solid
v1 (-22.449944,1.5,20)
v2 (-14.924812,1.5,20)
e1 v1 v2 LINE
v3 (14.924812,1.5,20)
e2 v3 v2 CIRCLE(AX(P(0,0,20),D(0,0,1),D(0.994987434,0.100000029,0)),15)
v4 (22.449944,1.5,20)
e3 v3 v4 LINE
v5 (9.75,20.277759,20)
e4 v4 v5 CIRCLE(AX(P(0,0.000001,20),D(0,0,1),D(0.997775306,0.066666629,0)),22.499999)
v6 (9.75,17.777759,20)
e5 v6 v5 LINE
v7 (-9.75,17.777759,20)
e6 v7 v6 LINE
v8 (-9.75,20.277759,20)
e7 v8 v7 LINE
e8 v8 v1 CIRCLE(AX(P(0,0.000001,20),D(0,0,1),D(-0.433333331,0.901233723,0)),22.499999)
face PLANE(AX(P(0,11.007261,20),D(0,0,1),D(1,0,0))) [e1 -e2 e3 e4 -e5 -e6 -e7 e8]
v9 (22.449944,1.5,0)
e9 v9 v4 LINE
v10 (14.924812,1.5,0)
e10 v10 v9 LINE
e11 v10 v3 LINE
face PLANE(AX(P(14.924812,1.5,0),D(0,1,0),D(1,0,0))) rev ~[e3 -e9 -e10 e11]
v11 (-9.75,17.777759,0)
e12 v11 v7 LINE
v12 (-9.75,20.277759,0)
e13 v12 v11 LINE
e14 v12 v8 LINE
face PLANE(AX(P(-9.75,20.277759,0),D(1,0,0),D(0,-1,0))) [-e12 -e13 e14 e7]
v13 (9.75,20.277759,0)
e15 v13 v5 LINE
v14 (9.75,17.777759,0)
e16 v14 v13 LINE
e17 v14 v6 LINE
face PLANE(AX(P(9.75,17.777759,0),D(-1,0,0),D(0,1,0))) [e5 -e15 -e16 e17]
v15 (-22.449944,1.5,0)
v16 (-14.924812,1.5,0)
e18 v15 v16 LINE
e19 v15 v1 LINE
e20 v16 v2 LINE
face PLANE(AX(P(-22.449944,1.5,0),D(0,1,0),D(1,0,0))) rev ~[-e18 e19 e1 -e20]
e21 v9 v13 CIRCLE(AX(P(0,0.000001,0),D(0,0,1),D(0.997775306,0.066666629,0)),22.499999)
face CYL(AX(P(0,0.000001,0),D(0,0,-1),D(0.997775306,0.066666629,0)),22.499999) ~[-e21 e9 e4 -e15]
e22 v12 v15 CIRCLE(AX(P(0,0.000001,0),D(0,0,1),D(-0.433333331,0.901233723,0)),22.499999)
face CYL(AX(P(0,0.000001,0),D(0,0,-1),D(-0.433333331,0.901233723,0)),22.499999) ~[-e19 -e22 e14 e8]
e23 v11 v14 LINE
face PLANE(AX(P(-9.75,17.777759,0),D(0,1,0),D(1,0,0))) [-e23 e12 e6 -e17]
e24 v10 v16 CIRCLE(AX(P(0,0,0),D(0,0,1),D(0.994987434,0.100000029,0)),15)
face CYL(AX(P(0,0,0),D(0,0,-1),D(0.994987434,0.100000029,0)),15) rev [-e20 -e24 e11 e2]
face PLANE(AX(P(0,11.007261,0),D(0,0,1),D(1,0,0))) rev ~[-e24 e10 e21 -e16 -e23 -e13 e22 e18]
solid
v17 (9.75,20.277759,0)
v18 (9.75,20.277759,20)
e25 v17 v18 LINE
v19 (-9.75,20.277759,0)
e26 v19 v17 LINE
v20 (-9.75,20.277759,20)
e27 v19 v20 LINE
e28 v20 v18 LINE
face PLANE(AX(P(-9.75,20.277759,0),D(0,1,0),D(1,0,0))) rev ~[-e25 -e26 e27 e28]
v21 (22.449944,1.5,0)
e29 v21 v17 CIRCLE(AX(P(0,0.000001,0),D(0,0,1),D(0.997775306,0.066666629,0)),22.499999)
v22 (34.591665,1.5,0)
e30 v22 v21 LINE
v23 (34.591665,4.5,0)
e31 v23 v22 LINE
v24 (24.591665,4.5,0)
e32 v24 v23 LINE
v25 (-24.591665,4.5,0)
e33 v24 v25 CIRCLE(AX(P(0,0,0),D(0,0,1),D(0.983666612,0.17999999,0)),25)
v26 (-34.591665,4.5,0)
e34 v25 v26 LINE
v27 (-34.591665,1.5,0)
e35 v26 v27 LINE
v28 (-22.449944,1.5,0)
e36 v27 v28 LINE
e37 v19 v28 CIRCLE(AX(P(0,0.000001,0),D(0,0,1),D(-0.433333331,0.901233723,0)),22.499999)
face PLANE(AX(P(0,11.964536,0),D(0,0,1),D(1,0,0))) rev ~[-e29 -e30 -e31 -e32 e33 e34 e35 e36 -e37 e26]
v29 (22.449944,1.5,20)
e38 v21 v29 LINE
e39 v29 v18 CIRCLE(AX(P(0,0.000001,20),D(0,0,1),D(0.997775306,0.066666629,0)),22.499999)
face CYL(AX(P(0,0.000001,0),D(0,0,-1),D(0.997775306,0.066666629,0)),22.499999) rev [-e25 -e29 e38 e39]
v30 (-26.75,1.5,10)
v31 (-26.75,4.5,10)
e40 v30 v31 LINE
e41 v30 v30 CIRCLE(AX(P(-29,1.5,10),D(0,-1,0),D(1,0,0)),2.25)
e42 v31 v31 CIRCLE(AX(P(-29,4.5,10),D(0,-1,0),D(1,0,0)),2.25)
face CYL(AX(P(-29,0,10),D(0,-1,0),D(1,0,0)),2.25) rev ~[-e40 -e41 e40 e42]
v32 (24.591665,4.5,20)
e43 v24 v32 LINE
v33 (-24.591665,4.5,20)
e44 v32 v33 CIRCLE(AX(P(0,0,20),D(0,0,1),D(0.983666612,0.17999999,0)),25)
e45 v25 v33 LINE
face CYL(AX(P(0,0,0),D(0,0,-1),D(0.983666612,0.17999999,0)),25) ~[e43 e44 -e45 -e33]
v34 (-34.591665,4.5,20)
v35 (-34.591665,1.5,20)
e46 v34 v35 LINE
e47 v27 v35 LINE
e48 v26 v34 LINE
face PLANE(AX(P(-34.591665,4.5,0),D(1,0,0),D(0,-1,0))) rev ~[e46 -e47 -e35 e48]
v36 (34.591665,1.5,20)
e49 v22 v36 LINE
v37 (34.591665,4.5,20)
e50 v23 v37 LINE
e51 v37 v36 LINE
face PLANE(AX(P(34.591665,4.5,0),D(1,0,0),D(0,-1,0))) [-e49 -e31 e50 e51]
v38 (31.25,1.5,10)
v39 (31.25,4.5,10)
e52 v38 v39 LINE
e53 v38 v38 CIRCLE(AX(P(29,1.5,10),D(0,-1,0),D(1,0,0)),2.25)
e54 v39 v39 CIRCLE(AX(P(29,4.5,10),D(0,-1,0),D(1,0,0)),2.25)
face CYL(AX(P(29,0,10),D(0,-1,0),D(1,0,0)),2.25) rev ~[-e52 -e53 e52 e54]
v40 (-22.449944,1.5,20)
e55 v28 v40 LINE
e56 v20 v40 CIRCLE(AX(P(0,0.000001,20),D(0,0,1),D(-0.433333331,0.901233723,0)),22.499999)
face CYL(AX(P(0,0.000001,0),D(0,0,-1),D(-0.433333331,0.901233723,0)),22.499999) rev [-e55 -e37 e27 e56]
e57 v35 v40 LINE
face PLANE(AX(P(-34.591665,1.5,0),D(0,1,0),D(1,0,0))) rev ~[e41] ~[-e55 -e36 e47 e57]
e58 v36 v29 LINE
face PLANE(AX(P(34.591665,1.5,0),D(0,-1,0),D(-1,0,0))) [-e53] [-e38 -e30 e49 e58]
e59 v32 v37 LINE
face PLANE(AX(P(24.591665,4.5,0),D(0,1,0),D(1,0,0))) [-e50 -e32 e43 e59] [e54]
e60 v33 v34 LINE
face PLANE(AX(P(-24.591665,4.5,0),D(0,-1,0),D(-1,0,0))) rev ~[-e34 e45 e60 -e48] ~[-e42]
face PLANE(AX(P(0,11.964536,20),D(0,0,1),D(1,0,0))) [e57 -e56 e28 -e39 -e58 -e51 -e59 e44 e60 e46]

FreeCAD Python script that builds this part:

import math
import FreeCAD as App
import Part
import Sketcher

V = App.Vector
Q = App.Units.Quantity

doc = App.newDocument("Part")
body = doc.addObject("PartDesign::Body", "Body")

sketch1 = body.newObject("Sketcher::SketchObject", "Sketch")
sketch1.AttachmentSupport = (doc.getObject("XY_Plane"), [""])
sketch1.MapMode = "FlatFace"
sketch1.addGeometry([
    Part.ArcOfCircle(Part.Circle(V(0, 0, 0), V(0, 0, 1), 22.5), math.radians(116), math.radians(176)),
    Part.LineSegment(V(-22.4, 1.5, 0), V(-14.9, 1.5, 0)),
    Part.ArcOfCircle(Part.Circle(V(0, 0, 0), V(0, 0, 1), 15), math.radians(6), math.radians(174)),
    Part.LineSegment(V(14.9, 1.5, 0), V(22.4, 1.5, 0)),
    Part.ArcOfCircle(Part.Circle(V(0, 0, 0), V(0, 0, 1), 22.5), math.radians(4), math.radians(64)),
    Part.LineSegment(V(9.8, 20.3, 0), V(9.8, 17.8, 0)),
    Part.LineSegment(V(9.8, 17.8, 0), V(-9.8, 17.8, 0)),
    Part.LineSegment(V(-9.8, 17.8, 0), V(-9.8, 20.3, 0)),
], False)
sketch1.addConstraint([
    Sketcher.Constraint("Coincident", 0, 2, 1, 1),
    Sketcher.Constraint("Coincident", 1, 2, 2, 2),
    Sketcher.Constraint("Coincident", 2, 1, 3, 1),
    Sketcher.Constraint("Coincident", 3, 2, 4, 1),
    Sketcher.Constraint("Coincident", 4, 2, 5, 1),
    Sketcher.Constraint("Coincident", 5, 2, 6, 1),
    Sketcher.Constraint("Coincident", 6, 2, 7, 1),
    Sketcher.Constraint("Coincident", 7, 2, 0, 1),
    Sketcher.Constraint("Horizontal", 1),
    Sketcher.Constraint("Horizontal", 3),
    Sketcher.Constraint("Vertical", 5),
    Sketcher.Constraint("Horizontal", 6),
    Sketcher.Constraint("Vertical", 7),
    Sketcher.Constraint("Coincident", 0, 3, -1, 1),
    Sketcher.Constraint("Coincident", 2, 3, -1, 1),
    Sketcher.Constraint("Coincident", 4, 3, -1, 1),
    Sketcher.Constraint("Equal", 0, 4),
    Sketcher.Constraint("Horizontal", 1, 2, 2, 1),
    Sketcher.Constraint("Horizontal", 4, 2, 7, 2),
    Sketcher.Constraint("Radius", 2, Q("15 mm")),
    Sketcher.Constraint("Radius", 0, Q("22.499999 mm")),
    Sketcher.Constraint("DistanceX", 6, 2, 6, 1, Q("19.5 mm")),
    Sketcher.Constraint("DistanceY", 5, 2, 5, 1, Q("2.5 mm")),
    Sketcher.Constraint("DistanceY", -1, 1, 0, 2, Q("1.5 mm")),
])
pad1 = body.newObject("PartDesign::Pad", "Pad")
pad1.Profile = sketch1
pad1.Length = 20
body2 = doc.addObject("PartDesign::Body", "Body001")

sketch2 = body2.newObject("Sketcher::SketchObject", "Sketch001")
sketch2.AttachmentSupport = (doc.getObject("XY_Plane001"), [""])
sketch2.MapMode = "FlatFace"
sketch2.addGeometry([
    Part.ArcOfCircle(Part.Circle(V(0, 0, 0), V(0, 0, 1), 25), math.radians(10), math.radians(170)),
    Part.LineSegment(V(-24.6, 4.5, 0), V(-34.6, 4.5, 0)),
    Part.LineSegment(V(-34.6, 4.5, 0), V(-34.6, 1.5, 0)),
    Part.LineSegment(V(-34.6, 1.5, 0), V(-22.4, 1.5, 0)),
    Part.ArcOfCircle(Part.Circle(V(0, 0, 0), V(0, 0, 1), 22.5), math.radians(116), math.radians(176)),
    Part.LineSegment(V(-9.8, 20.3, 0), V(9.8, 20.3, 0)),
    Part.ArcOfCircle(Part.Circle(V(0, 0, 0), V(0, 0, 1), 22.5), math.radians(4), math.radians(64)),
    Part.LineSegment(V(22.4, 1.5, 0), V(34.6, 1.5, 0)),
    Part.LineSegment(V(34.6, 1.5, 0), V(34.6, 4.5, 0)),
    Part.LineSegment(V(34.6, 4.5, 0), V(24.6, 4.5, 0)),
], False)
sketch2.addConstraint([
    Sketcher.Constraint("Coincident", 0, 2, 1, 1),
    Sketcher.Constraint("Coincident", 1, 2, 2, 1),
    Sketcher.Constraint("Coincident", 2, 2, 3, 1),
    Sketcher.Constraint("Coincident", 3, 2, 4, 2),
    Sketcher.Constraint("Coincident", 4, 1, 5, 1),
    Sketcher.Constraint("Coincident", 5, 2, 6, 2),
    Sketcher.Constraint("Coincident", 6, 1, 7, 1),
    Sketcher.Constraint("Coincident", 7, 2, 8, 1),
    Sketcher.Constraint("Coincident", 8, 2, 9, 1),
    Sketcher.Constraint("Coincident", 9, 2, 0, 1),
    Sketcher.Constraint("Horizontal", 1),
    Sketcher.Constraint("Vertical", 2),
    Sketcher.Constraint("Horizontal", 3),
    Sketcher.Constraint("Horizontal", 5),
    Sketcher.Constraint("Horizontal", 7),
    Sketcher.Constraint("Vertical", 8),
    Sketcher.Constraint("Horizontal", 9),
    Sketcher.Constraint("Coincident", 0, 3, -1, 1),
    Sketcher.Constraint("Coincident", 4, 3, -1, 1),
    Sketcher.Constraint("Coincident", 6, 3, -1, 1),
    Sketcher.Constraint("Equal", 4, 6),
    Sketcher.Constraint("Symmetric", 2, 2, 7, 2, -2),
    Sketcher.Constraint("Horizontal", 1, 2, 8, 2),
    Sketcher.Constraint("Radius", 0, Q("25 mm")),
    Sketcher.Constraint("Radius", 4, Q("22.499999 mm")),
    Sketcher.Constraint("DistanceX", 1, 2, 1, 1, Q("10 mm")),
    Sketcher.Constraint("DistanceY", 2, 2, 2, 1, Q("3 mm")),
    Sketcher.Constraint("DistanceX", 5, 1, 5, 2, Q("19.5 mm")),
    Sketcher.Constraint("DistanceY", -1, 1, 0, 2, Q("4.5 mm")),
])
pad2 = body2.newObject("PartDesign::Pad", "Pad001")
pad2.Profile = sketch2
pad2.Length = 20

sketch3 = body2.newObject("Sketcher::SketchObject", "Sketch002")
sketch3.AttachmentSupport = (doc.getObject("XZ_Plane001"), [""])
sketch3.MapMode = "FlatFace"
sketch3.addGeometry([
    Part.Circle(V(-29, 10, 0), V(0, 0, 1), 2.2),
    Part.Circle(V(29, 10, 0), V(0, 0, 1), 2.2),
], False)
sketch3.addConstraint([
    Sketcher.Constraint("Equal", 0, 1),
    Sketcher.Constraint("Symmetric", 0, 3, 1, 3, -2),
    Sketcher.Constraint("Diameter", 0, Q("4.5 mm")),
    Sketcher.Constraint("DistanceX", 0, 3, -1, 1, Q("29 mm")),
    Sketcher.Constraint("DistanceY", -1, 1, 0, 3, Q("10 mm")),
])
pocket1 = body2.newObject("PartDesign::Pocket", "Pocket")
pocket1.Profile = sketch3
pocket1.Type = "ThroughAll"

doc.recompute()
